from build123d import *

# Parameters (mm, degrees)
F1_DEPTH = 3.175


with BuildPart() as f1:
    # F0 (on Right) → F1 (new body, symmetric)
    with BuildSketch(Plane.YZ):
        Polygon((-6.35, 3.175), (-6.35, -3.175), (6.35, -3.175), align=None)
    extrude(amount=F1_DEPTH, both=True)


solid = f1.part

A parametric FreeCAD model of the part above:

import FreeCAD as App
import Part
import Sketcher

V = App.Vector
Q = App.Units.Quantity


def add_polygon(sketch, points):
    """Adds a closed chain of lines whose ends are joined by coincident constraints."""
    first, n = sketch.GeometryCount, len(points)
    for a, b in zip(points, points[1:] + points[:1]):
        sketch.addGeometry(Part.LineSegment(App.Vector(*a, 0), App.Vector(*b, 0)), False)
    for i in range(n):
        sketch.addConstraint(Sketcher.Constraint("Coincident", first + i, 2, first + (i + 1) % n, 1))

doc = App.newDocument("Part")
body = doc.addObject("PartDesign::Body", "Body")

# Sketch on YZ plane
sketch1 = body.newObject("Sketcher::SketchObject", "Sketch")
sketch1.AttachmentSupport = (doc.getObject("YZ_Plane"), [""])
sketch1.MapMode = "FlatFace"
add_polygon(sketch1, [(-6, 3), (-6, -3), (6, -3)])  # lines 0-2
sketch1.addConstraint([
    Sketcher.Constraint("Vertical", 0),
    Sketcher.Constraint("Horizontal", 1),
    Sketcher.Constraint("Symmetric", 1, 2, 2, 2, -1, 1),
    Sketcher.Constraint("DistanceX", 1, 1, 1, 2, Q("0.5 in")),
    Sketcher.Constraint("DistanceY", 0, 2, 0, 1, Q("0.25 in")),
])
pad1 = body.newObject("PartDesign::Pad", "Pad")
pad1.Profile = sketch1
pad1.Length = Q("0.25 in")
pad1.Midplane = True

doc.recompute()
